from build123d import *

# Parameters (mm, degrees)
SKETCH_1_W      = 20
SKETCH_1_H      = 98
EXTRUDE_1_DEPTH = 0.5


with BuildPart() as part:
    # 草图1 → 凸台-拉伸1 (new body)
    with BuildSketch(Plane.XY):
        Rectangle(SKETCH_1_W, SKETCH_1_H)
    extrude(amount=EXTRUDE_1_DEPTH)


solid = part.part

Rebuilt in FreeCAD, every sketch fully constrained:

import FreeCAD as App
import Part
import Sketcher

doc = App.newDocument("Part")
body = doc.addObject("PartDesign::Body", "Body")

# Sketch on XY plane
sketch1 = body.newObject("Sketcher::SketchObject", "Sketch")
sketch1.AttachmentSupport = (doc.getObject("XY_Plane"), [""])
sketch1.MapMode = "FlatFace"
sketch1.addGeometry([
    Part.LineSegment(App.Vector(-10, 49, 0), App.Vector(-10, -49, 0)),
    Part.LineSegment(App.Vector(-10, -49, 0), App.Vector(10, -49, 0)),
    Part.LineSegment(App.Vector(10, -49, 0), App.Vector(10, 49, 0)),
    Part.LineSegment(App.Vector(10, 49, 0), App.Vector(-10, 49, 0)),
], False)
sketch1.addConstraint([
    Sketcher.Constraint("Coincident", 0, 2, 1, 1),
    Sketcher.Constraint("Coincident", 1, 2, 2, 1),
    Sketcher.Constraint("Coincident", 2, 2, 3, 1),
    Sketcher.Constraint("Coincident", 3, 2, 0, 1),
    Sketcher.Constraint("Vertical", 0),
    Sketcher.Constraint("Horizontal", 1),
    Sketcher.Constraint("Vertical", 2),
    Sketcher.Constraint("Horizontal", 3),
    Sketcher.Constraint("Symmetric", 0, 2, 2, 2, -1, 1),
    Sketcher.Constraint("DistanceX", 1, 1, 1, 2, 20.0),
    Sketcher.Constraint("DistanceY", 0, 2, 0, 1, 98.0),
])
pad1 = body.newObject("PartDesign::Pad", "Pad")
pad1.Profile = sketch1
pad1.Length = 0.5

doc.recompute()
